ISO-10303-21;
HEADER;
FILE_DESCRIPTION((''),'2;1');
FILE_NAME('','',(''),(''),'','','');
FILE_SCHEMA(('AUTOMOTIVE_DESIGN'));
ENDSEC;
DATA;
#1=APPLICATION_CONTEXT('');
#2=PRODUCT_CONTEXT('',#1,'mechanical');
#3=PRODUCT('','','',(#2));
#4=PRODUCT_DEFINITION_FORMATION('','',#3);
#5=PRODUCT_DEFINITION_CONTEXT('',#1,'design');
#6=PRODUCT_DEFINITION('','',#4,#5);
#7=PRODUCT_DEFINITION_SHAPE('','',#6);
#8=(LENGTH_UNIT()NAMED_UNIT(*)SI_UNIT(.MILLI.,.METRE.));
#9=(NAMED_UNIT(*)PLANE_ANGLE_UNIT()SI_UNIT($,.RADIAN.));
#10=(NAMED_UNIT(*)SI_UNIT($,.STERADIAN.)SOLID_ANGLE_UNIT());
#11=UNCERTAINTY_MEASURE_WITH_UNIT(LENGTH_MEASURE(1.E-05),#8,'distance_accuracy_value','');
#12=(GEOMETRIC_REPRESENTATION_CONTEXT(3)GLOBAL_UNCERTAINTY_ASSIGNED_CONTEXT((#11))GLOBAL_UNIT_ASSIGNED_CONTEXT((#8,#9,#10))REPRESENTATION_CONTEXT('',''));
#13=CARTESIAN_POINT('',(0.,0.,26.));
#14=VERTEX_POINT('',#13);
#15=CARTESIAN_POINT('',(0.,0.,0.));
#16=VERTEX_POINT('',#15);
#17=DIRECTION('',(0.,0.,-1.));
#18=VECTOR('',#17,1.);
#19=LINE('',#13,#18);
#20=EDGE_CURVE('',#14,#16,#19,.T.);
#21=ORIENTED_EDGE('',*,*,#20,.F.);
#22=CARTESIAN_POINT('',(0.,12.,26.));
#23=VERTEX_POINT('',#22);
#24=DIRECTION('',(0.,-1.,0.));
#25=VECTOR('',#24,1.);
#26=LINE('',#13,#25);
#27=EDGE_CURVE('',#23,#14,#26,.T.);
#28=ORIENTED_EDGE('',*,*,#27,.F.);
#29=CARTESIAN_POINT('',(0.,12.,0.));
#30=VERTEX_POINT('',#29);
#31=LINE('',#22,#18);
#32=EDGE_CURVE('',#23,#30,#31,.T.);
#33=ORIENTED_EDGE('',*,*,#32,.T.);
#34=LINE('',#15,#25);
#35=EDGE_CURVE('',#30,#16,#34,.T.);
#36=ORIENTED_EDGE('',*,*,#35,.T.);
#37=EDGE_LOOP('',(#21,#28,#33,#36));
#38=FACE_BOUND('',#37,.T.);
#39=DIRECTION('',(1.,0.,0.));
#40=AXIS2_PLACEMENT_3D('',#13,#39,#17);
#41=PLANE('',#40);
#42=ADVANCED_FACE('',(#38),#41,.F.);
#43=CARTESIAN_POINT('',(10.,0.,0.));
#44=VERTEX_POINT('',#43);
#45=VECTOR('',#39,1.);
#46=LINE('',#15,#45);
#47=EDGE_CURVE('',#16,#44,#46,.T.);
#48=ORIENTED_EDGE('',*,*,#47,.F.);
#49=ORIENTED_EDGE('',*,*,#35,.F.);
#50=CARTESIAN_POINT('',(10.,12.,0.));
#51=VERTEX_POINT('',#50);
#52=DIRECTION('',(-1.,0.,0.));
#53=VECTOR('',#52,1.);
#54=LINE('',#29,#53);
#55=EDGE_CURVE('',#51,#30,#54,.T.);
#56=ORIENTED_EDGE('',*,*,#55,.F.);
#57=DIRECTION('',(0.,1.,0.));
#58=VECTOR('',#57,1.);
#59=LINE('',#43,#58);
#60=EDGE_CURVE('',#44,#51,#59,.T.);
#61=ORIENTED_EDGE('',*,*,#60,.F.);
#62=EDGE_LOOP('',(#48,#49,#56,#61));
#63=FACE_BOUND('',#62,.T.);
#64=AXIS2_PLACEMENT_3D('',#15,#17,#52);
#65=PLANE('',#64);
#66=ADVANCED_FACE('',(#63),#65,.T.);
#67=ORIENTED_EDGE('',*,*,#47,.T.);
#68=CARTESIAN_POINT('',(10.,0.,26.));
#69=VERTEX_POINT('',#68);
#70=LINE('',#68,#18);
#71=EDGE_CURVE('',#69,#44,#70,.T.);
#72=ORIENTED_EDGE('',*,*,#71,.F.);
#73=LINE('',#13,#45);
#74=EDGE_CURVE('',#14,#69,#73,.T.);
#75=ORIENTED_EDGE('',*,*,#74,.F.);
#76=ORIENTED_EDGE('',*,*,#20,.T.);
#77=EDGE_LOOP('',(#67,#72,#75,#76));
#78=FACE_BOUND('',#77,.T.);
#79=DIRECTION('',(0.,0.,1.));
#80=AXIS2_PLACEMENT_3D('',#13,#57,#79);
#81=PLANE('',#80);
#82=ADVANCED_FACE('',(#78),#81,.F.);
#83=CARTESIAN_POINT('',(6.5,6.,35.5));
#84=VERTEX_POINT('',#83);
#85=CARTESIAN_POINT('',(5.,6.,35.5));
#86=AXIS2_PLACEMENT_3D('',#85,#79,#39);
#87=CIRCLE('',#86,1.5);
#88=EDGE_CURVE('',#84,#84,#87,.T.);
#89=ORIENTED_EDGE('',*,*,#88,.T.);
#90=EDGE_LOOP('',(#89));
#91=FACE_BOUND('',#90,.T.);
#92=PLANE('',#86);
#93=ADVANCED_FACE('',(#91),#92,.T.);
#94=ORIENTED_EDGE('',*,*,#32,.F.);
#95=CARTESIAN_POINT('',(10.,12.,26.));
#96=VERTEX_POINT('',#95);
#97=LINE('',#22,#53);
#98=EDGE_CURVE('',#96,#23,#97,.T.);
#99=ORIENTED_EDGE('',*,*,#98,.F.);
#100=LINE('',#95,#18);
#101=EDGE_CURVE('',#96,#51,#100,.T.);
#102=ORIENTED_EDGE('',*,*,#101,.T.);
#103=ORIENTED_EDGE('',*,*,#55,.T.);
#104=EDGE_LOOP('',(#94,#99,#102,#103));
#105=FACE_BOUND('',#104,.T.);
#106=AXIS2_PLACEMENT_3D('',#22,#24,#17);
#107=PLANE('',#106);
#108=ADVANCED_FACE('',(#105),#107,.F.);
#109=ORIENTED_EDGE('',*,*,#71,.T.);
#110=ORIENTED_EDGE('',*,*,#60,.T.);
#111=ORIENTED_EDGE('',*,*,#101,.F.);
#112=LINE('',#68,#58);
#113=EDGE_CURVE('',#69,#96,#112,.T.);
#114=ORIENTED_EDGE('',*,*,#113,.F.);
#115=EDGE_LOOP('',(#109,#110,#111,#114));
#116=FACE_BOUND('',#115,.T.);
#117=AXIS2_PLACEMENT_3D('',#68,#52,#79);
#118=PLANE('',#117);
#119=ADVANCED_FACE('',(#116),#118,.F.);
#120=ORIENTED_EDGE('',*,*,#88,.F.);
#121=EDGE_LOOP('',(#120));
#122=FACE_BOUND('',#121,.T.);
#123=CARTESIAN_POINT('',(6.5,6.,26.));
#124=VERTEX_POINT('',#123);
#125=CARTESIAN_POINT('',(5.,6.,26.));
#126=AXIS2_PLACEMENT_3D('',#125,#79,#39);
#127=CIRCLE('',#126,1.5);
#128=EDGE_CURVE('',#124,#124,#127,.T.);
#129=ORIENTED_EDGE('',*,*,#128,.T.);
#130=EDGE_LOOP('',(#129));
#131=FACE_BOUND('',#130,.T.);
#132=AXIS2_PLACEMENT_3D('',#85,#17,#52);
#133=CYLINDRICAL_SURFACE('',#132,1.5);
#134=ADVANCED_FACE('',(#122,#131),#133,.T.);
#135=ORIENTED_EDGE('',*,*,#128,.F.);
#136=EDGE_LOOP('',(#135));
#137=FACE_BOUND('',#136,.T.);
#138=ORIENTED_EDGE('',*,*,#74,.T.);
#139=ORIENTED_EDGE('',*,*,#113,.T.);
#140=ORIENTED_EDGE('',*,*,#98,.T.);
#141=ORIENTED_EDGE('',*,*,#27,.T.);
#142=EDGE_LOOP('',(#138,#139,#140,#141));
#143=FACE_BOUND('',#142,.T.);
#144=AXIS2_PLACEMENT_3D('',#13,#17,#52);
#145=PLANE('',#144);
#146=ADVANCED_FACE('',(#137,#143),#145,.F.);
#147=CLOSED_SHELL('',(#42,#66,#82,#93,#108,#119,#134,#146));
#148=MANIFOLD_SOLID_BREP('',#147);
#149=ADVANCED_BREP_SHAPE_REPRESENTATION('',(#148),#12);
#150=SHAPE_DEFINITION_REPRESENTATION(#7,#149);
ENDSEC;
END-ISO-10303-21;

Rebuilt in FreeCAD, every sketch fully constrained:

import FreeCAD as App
import Part
import Sketcher
Q = App.Units.Quantity

doc = App.newDocument("Part")
body = doc.addObject("PartDesign::Body", "Body")

sketch1 = body.newObject("Sketcher::SketchObject", "Sketch")
sketch1.AttachmentSupport = (doc.getObject("XY_Plane"), [""])
sketch1.MapMode = "FlatFace"
sketch1.addGeometry([
    Part.LineSegment(App.Vector(0, 12, 0), App.Vector(0, 0, 0)),
    Part.LineSegment(App.Vector(0, 0, 0), App.Vector(10, 0, 0)),
    Part.LineSegment(App.Vector(10, 0, 0), App.Vector(10, 12, 0)),
    Part.LineSegment(App.Vector(10, 12, 0), App.Vector(0, 12, 0)),
], False)
sketch1.addConstraint([
    Sketcher.Constraint("Coincident", 0, 2, 1, 1),
    Sketcher.Constraint("Coincident", 1, 2, 2, 1),
    Sketcher.Constraint("Coincident", 2, 2, 3, 1),
    Sketcher.Constraint("Coincident", 3, 2, 0, 1),
    Sketcher.Constraint("Vertical", 0),
    Sketcher.Constraint("Horizontal", 1),
    Sketcher.Constraint("Vertical", 2),
    Sketcher.Constraint("Horizontal", 3),
    Sketcher.Constraint("Coincident", 0, 2, -1, 1),
    Sketcher.Constraint("DistanceX", 1, 1, 1, 2, Q("10 mm")),
    Sketcher.Constraint("DistanceY", 0, 2, 0, 1, Q("12 mm")),
])
pad1 = body.newObject("PartDesign::Pad", "Pad")
pad1.Profile = sketch1
pad1.Length = 26

sketch2 = body.newObject("Sketcher::SketchObject", "Sketch001")
sketch2.AttachmentSupport = (doc.getObject("XY_Plane"), [""])
sketch2.MapMode = "FlatFace"
sketch2.AttachmentOffset = App.Placement(App.Vector(0, 0, 26), App.Rotation())
sketch2.addGeometry(Part.Circle(App.Vector(5, 6, 0), App.Vector(0, 0, 1), 1.5), False)
sketch2.addConstraint([
    Sketcher.Constraint("Diameter", 0, Q("3 mm")),
    Sketcher.Constraint("DistanceX", -1, 1, 0, 3, Q("5 mm")),
    Sketcher.Constraint("DistanceY", -1, 1, 0, 3, Q("6 mm")),
])
pad2 = body.newObject("PartDesign::Pad", "Pad001")
pad2.Profile = sketch2
pad2.Length = 9.5

doc.recompute()
